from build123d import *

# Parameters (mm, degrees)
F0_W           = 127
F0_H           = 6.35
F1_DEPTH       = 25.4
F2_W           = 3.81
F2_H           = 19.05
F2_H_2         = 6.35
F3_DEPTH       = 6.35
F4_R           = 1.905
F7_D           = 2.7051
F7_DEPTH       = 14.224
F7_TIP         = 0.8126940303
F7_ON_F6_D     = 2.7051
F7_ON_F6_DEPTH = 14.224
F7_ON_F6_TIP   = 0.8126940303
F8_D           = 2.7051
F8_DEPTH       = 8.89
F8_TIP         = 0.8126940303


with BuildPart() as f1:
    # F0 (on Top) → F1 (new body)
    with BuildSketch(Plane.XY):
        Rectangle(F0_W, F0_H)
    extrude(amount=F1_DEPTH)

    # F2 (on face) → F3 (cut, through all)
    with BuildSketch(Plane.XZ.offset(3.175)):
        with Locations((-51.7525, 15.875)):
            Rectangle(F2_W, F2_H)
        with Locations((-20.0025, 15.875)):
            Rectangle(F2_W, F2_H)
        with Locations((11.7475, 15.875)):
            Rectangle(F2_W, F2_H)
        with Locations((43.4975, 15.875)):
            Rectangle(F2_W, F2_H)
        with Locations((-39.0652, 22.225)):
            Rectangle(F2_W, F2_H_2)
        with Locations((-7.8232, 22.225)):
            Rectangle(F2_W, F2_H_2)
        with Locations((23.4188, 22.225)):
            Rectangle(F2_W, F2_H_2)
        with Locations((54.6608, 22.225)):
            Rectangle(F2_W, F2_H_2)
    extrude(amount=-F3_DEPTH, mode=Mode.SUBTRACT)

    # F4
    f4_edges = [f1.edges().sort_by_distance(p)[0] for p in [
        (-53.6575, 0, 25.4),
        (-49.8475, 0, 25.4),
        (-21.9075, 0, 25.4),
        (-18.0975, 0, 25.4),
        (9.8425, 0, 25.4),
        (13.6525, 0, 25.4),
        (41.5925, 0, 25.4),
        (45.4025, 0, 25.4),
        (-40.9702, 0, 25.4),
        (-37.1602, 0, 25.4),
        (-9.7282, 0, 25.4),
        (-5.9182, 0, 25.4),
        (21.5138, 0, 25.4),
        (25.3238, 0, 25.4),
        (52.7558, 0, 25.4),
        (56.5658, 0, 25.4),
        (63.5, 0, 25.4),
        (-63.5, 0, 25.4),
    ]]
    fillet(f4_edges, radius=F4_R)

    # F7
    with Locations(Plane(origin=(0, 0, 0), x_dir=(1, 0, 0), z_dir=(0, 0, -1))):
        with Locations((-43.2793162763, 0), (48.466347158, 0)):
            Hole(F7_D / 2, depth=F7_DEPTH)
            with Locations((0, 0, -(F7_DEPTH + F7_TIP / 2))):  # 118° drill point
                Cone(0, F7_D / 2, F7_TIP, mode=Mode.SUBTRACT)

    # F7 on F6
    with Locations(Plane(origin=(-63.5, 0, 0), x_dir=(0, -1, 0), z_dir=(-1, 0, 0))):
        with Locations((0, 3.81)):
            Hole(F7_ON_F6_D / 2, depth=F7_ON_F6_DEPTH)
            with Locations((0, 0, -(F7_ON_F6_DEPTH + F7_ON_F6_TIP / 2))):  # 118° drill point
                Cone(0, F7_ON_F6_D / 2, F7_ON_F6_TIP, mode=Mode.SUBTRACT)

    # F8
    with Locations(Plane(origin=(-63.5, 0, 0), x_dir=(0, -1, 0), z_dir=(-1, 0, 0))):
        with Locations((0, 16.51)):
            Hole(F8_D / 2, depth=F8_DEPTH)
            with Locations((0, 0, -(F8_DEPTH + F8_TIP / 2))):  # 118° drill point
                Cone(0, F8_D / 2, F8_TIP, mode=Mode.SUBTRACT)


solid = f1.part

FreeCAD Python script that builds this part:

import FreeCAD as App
import Part
import Sketcher
Q = App.Units.Quantity


def edges_at(feature, points):
    """Names of the edges that pass closest to the given points."""
    edges = feature.Shape.Edges
    near = lambda p: min(range(len(edges)), key=lambda i: edges[i].distToShape(Part.Vertex(*p))[0])
    return sorted({f"Edge{near(p) + 1}" for p in points})


def add_polygon(sketch, points):
    """Adds a closed chain of lines whose ends are joined by coincident constraints."""
    first, n = sketch.GeometryCount, len(points)
    for a, b in zip(points, points[1:] + points[:1]):
        sketch.addGeometry(Part.LineSegment(App.Vector(*a, 0), App.Vector(*b, 0)), False)
    for i in range(n):
        sketch.addConstraint(Sketcher.Constraint("Coincident", first + i, 2, first + (i + 1) % n, 1))

doc = App.newDocument("Part")
body = doc.addObject("PartDesign::Body", "Body")

# Sketch on XY plane
sketch1 = body.newObject("Sketcher::SketchObject", "Sketch")
sketch1.AttachmentSupport = (doc.getObject("XY_Plane"), [""])
sketch1.MapMode = "FlatFace"
add_polygon(sketch1, [(-64, 3), (-64, -3), (64, -3), (64, 3)])  # lines 0-3
sketch1.addConstraint([
    Sketcher.Constraint("Vertical", 0),
    Sketcher.Constraint("Horizontal", 1),
    Sketcher.Constraint("Vertical", 2),
    Sketcher.Constraint("Horizontal", 3),
    Sketcher.Constraint("Symmetric", 0, 2, 2, 2, -1, 1),
    Sketcher.Constraint("DistanceX", 1, 1, 1, 2, Q("5 in")),
    Sketcher.Constraint("DistanceY", 0, 2, 0, 1, Q("0.25 in")),
])
pad1 = body.newObject("PartDesign::Pad", "Pad")
pad1.Profile = sketch1
pad1.Length = Q("1 in")

# Sketch on XZ plane
sketch2 = body.newObject("Sketcher::SketchObject", "Sketch001")
sketch2.AttachmentSupport = (doc.getObject("XZ_Plane"), [""])
sketch2.MapMode = "FlatFace"
sketch2.AttachmentOffset = App.Placement(App.Vector(0, 0, 0.125 * 25.4), App.Rotation())
add_polygon(sketch2, [(-53.7, 25.4), (-53.7, 6.3), (-49.8, 6.3), (-49.8, 25.4)])  # lines 0-3
add_polygon(sketch2, [(-21.9, 25.4), (-21.9, 6.3), (-18.1, 6.3), (-18.1, 25.4)])  # lines 4-7
add_polygon(sketch2, [(9.8, 25.4), (9.8, 6.3), (13.7, 6.3), (13.7, 25.4)])  # lines 8-11
add_polygon(sketch2, [(41.6, 25.4), (41.6, 6.3), (45.4, 6.3), (45.4, 25.4)])  # lines 12-15
add_polygon(sketch2, [(-41, 25.4), (-41, 19.1), (-37.2, 19.1), (-37.2, 25.4)])  # lines 16-19
add_polygon(sketch2, [(-9.7, 25.4), (-9.7, 19.1), (-5.9, 19.1), (-5.9, 25.4)])  # lines 20-23
add_polygon(sketch2, [(21.5, 25.4), (21.5, 19.1), (25.3, 19.1), (25.3, 25.4)])  # lines 24-27
add_polygon(sketch2, [(52.8, 25.4), (52.8, 19.1), (56.6, 19.1), (56.6, 25.4)])  # lines 28-31
sketch2.addConstraint([
    Sketcher.Constraint("Vertical", 0),
    Sketcher.Constraint("Horizontal", 1),
    Sketcher.Constraint("Vertical", 2),
    Sketcher.Constraint("Horizontal", 3),
    Sketcher.Constraint("Vertical", 4),
    Sketcher.Constraint("Horizontal", 5),
    Sketcher.Constraint("Vertical", 6),
    Sketcher.Constraint("Horizontal", 7),
    Sketcher.Constraint("Vertical", 8),
    Sketcher.Constraint("Horizontal", 9),
    Sketcher.Constraint("Vertical", 10),
    Sketcher.Constraint("Horizontal", 11),
    Sketcher.Constraint("Vertical", 12),
    Sketcher.Constraint("Horizontal", 13),
    Sketcher.Constraint("Vertical", 14),
    Sketcher.Constraint("Horizontal", 15),
    Sketcher.Constraint("Vertical", 16),
    Sketcher.Constraint("Horizontal", 17),
    Sketcher.Constraint("Vertical", 18),
    Sketcher.Constraint("Horizontal", 19),
    Sketcher.Constraint("Vertical", 20),
    Sketcher.Constraint("Horizontal", 21),
    Sketcher.Constraint("Vertical", 22),
    Sketcher.Constraint("Horizontal", 23),
    Sketcher.Constraint("Vertical", 24),
    Sketcher.Constraint("Horizontal", 25),
    Sketcher.Constraint("Vertical", 26),
    Sketcher.Constraint("Horizontal", 27),
    Sketcher.Constraint("Vertical", 28),
    Sketcher.Constraint("Horizontal", 29),
    Sketcher.Constraint("Vertical", 30),
    Sketcher.Constraint("Horizontal", 31),
    Sketcher.Constraint("Horizontal", 1, 2, 4, 2),
    Sketcher.Constraint("Horizontal", 3, 2, 6, 2),
    Sketcher.Constraint("Horizontal", 5, 2, 8, 2),
    Sketcher.Constraint("Horizontal", 7, 2, 10, 2),
    Sketcher.Constraint("Horizontal", 9, 2, 12, 2),
    Sketcher.Constraint("Horizontal", 11, 2, 14, 2),
    Sketcher.Constraint("Horizontal", 15, 2, 18, 2),
    Sketcher.Constraint("Horizontal", 17, 2, 20, 2),
    Sketcher.Constraint("Horizontal", 19, 2, 22, 2),
    Sketcher.Constraint("Horizontal", 21, 2, 24, 2),
    Sketcher.Constraint("Horizontal", 23, 2, 26, 2),
    Sketcher.Constraint("Horizontal", 25, 2, 28, 2),
    Sketcher.Constraint("Horizontal", 27, 2, 30, 2),
    Sketcher.Constraint("Equal", 3, 5),
    Sketcher.Constraint("Equal", 7, 9),
    Sketcher.Constraint("Equal", 11, 13),
    Sketcher.Constraint("Equal", 15, 17),
    Sketcher.Constraint("Equal", 19, 21),
    Sketcher.Constraint("Equal", 23, 25),
    Sketcher.Constraint("Equal", 27, 29),
    Sketcher.Constraint("DistanceY", -1, 1, 2, 2, Q("1 in")),
    Sketcher.Constraint("DistanceX", 1, 1, 1, 2, Q("0.15 in")),
    Sketcher.Constraint("DistanceY", 0, 2, 0, 1, Q("0.75 in")),
    Sketcher.Constraint("DistanceY", 16, 2, 16, 1, Q("0.25 in")),
    Sketcher.Constraint("DistanceX", 1, 2, 4, 2, Q("1.1 in")),
    Sketcher.Constraint("DistanceX", 5, 2, 8, 2, Q("1.1 in")),
    Sketcher.Constraint("DistanceX", 9, 2, 12, 2, Q("1.1 in")),
    Sketcher.Constraint("DistanceX", 25, 2, 28, 2, Q("1.08 in")),
    Sketcher.Constraint("DistanceX", 16, 2, -1, 1, Q("1.613 in")),
    Sketcher.Constraint("DistanceX", 20, 2, -1, 1, Q("0.383 in")),
    Sketcher.Constraint("DistanceX", -1, 1, 24, 2, Q("0.847 in")),
    Sketcher.Constraint("DistanceX", 0, 2, -1, 1, Q("2.1125 in")),
])
pocket1 = body.newObject("PartDesign::Pocket", "Pocket")
pocket1.Profile = sketch2
pocket1.Type = "ThroughAll"
doc.recompute()

fillet = body.newObject("PartDesign::Fillet", "Fillet")
fillet.Base = (pocket1, edges_at(pocket1, [
    (-53.657, 0, 25.4),
    (-49.847, 0, 25.4),
    (-21.907, 0, 25.4),
    (-18.098, 0, 25.4),
    (9.842, 0, 25.4),
    (13.652, 0, 25.4),
    (41.593, 0, 25.4),
    (45.403, 0, 25.4),
    (-40.97, 0, 25.4),
    (-37.16, 0, 25.4),
    (-9.728, 0, 25.4),
    (-5.918, 0, 25.4),
    (21.514, 0, 25.4),
    (25.324, 0, 25.4),
    (52.756, 0, 25.4),
    (56.566, 0, 25.4),
    (63.5, 0, 25.4),
    (-63.5, 0, 25.4),
]))
fillet.Radius = Q("0.075 in")

# Sketch on XY plane
sketch3 = body.newObject("Sketcher::SketchObject", "Sketch002")
sketch3.AttachmentSupport = (doc.getObject("XY_Plane"), [""])
sketch3.MapMode = "FlatFace"
sketch3.addGeometry([
    Part.Circle(App.Vector(-43.3, 0, 0), App.Vector(0, 0, 1), 1.4),
    Part.Circle(App.Vector(48.5, 0, 0), App.Vector(0, 0, 1), 1.4),
], False)
sketch3.addConstraint([
    Sketcher.Constraint("Equal", 0, 1),
    Sketcher.Constraint("PointOnObject", 0, 3, -1),
    Sketcher.Constraint("PointOnObject", 1, 3, -1),
    Sketcher.Constraint("Diameter", 0, Q("0.1065 in")),
    Sketcher.Constraint("DistanceX", 0, 3, -1, 1, Q("43.279316 mm")),
    Sketcher.Constraint("DistanceX", -1, 1, 1, 3, Q("48.466347 mm")),
])
doc.recompute()
hole = body.newObject("PartDesign::Hole", "Hole")
hole.Profile = sketch3
hole.ThreadType = "None"
hole.Diameter = Q("0.1065 in")
hole.DepthType = "Dimension"
hole.Depth = Q("0.56 in")
hole.DrillPoint = "Angled"
hole.DrillPointAngle = 118
hole.Reversed = True

# Sketch on YZ plane
sketch4 = body.newObject("Sketcher::SketchObject", "Sketch003")
sketch4.AttachmentSupport = (doc.getObject("YZ_Plane"), [""])
sketch4.MapMode = "FlatFace"
sketch4.AttachmentOffset = App.Placement(App.Vector(0, 0, -2.5 * 25.4), App.Rotation())
sketch4.addGeometry(Part.Circle(App.Vector(0, 3.8, 0), App.Vector(0, 0, 1), 1.4), False)
sketch4.addConstraint([
    Sketcher.Constraint("PointOnObject", 0, 3, -2),
    Sketcher.Constraint("Diameter", 0, Q("0.1065 in")),
    Sketcher.Constraint("DistanceY", -1, 1, 0, 3, Q("0.15 in")),
])
doc.recompute()
hole2 = body.newObject("PartDesign::Hole", "Hole001")
hole2.Profile = sketch4
hole2.ThreadType = "None"
hole2.Diameter = Q("0.1065 in")
hole2.DepthType = "Dimension"
hole2.Depth = Q("0.56 in")
hole2.DrillPoint = "Angled"
hole2.DrillPointAngle = 118
hole2.Reversed = True

# Sketch on YZ plane
sketch5 = body.newObject("Sketcher::SketchObject", "Sketch004")
sketch5.AttachmentSupport = (doc.getObject("YZ_Plane"), [""])
sketch5.MapMode = "FlatFace"
sketch5.AttachmentOffset = App.Placement(App.Vector(0, 0, -2.5 * 25.4), App.Rotation())
sketch5.addGeometry(Part.Circle(App.Vector(0, 16.5, 0), App.Vector(0, 0, 1), 1.4), False)
sketch5.addConstraint([
    Sketcher.Constraint("PointOnObject", 0, 3, -2),
    Sketcher.Constraint("Diameter", 0, Q("0.1065 in")),
    Sketcher.Constraint("DistanceY", -1, 1, 0, 3, Q("0.65 in")),
])
doc.recompute()
hole3 = body.newObject("PartDesign::Hole", "Hole002")
hole3.Profile = sketch5
hole3.ThreadType = "None"
hole3.Diameter = Q("0.1065 in")
hole3.DepthType = "Dimension"
hole3.Depth = Q("0.35 in")
hole3.DrillPoint = "Angled"
hole3.DrillPointAngle = 118
hole3.Reversed = True

doc.recompute()
